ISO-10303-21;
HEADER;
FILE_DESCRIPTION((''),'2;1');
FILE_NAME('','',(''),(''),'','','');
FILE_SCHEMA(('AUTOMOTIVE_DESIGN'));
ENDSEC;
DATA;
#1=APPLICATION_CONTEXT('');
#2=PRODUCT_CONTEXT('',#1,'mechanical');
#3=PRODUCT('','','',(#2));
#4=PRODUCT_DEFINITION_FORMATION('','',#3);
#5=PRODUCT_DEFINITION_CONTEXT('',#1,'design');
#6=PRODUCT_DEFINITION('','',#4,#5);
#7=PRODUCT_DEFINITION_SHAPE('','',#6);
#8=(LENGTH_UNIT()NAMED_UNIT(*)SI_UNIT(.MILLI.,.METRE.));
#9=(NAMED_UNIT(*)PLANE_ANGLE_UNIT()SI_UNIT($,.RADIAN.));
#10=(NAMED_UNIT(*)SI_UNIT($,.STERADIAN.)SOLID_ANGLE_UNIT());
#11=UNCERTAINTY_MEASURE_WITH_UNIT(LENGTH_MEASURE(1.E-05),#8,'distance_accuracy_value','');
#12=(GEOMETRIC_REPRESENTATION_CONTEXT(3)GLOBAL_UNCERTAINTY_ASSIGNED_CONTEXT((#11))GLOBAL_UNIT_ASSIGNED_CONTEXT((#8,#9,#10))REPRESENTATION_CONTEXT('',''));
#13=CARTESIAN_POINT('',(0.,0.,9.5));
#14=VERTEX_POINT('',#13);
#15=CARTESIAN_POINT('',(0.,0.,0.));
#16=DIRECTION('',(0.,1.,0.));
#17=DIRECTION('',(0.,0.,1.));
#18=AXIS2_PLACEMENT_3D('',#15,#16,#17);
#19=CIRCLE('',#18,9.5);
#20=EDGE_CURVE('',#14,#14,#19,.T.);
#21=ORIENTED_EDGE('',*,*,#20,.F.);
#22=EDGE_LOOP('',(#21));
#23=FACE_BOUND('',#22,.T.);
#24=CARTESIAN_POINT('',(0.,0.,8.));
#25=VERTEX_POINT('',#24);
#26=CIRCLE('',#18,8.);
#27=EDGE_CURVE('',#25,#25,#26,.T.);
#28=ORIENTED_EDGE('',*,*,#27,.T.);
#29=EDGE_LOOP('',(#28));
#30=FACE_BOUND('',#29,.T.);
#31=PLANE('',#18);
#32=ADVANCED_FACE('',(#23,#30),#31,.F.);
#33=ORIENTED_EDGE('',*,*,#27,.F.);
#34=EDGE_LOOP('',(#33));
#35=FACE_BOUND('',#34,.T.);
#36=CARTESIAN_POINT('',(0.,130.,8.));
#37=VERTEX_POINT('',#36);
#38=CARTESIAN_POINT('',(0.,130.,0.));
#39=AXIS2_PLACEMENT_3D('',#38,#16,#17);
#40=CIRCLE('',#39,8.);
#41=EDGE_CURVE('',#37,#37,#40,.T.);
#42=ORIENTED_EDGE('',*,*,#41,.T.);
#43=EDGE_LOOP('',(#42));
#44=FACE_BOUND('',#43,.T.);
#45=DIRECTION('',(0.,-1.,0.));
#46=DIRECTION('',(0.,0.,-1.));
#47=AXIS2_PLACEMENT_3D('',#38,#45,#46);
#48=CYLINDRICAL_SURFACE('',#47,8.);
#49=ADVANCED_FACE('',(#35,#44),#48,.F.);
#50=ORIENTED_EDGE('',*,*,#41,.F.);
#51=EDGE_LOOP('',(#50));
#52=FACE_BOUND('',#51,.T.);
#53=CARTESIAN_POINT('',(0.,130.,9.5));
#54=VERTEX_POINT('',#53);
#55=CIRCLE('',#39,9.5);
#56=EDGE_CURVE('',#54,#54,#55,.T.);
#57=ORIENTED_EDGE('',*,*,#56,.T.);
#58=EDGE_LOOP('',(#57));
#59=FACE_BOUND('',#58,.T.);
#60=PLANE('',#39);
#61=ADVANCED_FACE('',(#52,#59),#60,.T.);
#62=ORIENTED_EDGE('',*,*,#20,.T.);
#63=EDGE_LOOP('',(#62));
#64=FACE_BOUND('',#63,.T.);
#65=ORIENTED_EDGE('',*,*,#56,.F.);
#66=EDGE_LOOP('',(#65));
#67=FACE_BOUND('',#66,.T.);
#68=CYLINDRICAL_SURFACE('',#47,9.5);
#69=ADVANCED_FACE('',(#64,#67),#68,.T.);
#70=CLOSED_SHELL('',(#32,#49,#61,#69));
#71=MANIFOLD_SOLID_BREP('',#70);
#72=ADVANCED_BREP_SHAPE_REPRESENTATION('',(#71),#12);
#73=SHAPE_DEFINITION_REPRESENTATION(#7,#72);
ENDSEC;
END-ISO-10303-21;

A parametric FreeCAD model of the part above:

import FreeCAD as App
import Part
import Sketcher
from FreeCAD import Vector
Q = App.Units.Quantity

doc = App.newDocument("Part")
body = doc.addObject("PartDesign::Body", "Body")

# Sketch on XZ plane
sketch1 = body.newObject("Sketcher::SketchObject", "Sketch")
sketch1.AttachmentSupport = (doc.getObject("XZ_Plane"), [""])
sketch1.MapMode = "FlatFace"
sketch1.addGeometry(Part.Circle(Vector(0, 0, 0), Vector(0, 0, 1), 10), False)
sketch1.addGeometry(Part.Circle(Vector(0, 0, 0), Vector(0, 0, 1), 8), False)
sketch1.addConstraint(Sketcher.Constraint("Coincident", 0, 3, -1, 1))
sketch1.addConstraint(Sketcher.Constraint("Coincident", 1, 3, -1, 1))
sketch1.addConstraint(Sketcher.Constraint("Diameter", 0, Q("19 mm")))
sketch1.addConstraint(Sketcher.Constraint("Diameter", 1, Q("16 mm")))
pad1 = body.newObject("PartDesign::Pad", "Pad")
pad1.Profile = sketch1
pad1.Length = 130
pad1.Reversed = True

doc.recompute()
